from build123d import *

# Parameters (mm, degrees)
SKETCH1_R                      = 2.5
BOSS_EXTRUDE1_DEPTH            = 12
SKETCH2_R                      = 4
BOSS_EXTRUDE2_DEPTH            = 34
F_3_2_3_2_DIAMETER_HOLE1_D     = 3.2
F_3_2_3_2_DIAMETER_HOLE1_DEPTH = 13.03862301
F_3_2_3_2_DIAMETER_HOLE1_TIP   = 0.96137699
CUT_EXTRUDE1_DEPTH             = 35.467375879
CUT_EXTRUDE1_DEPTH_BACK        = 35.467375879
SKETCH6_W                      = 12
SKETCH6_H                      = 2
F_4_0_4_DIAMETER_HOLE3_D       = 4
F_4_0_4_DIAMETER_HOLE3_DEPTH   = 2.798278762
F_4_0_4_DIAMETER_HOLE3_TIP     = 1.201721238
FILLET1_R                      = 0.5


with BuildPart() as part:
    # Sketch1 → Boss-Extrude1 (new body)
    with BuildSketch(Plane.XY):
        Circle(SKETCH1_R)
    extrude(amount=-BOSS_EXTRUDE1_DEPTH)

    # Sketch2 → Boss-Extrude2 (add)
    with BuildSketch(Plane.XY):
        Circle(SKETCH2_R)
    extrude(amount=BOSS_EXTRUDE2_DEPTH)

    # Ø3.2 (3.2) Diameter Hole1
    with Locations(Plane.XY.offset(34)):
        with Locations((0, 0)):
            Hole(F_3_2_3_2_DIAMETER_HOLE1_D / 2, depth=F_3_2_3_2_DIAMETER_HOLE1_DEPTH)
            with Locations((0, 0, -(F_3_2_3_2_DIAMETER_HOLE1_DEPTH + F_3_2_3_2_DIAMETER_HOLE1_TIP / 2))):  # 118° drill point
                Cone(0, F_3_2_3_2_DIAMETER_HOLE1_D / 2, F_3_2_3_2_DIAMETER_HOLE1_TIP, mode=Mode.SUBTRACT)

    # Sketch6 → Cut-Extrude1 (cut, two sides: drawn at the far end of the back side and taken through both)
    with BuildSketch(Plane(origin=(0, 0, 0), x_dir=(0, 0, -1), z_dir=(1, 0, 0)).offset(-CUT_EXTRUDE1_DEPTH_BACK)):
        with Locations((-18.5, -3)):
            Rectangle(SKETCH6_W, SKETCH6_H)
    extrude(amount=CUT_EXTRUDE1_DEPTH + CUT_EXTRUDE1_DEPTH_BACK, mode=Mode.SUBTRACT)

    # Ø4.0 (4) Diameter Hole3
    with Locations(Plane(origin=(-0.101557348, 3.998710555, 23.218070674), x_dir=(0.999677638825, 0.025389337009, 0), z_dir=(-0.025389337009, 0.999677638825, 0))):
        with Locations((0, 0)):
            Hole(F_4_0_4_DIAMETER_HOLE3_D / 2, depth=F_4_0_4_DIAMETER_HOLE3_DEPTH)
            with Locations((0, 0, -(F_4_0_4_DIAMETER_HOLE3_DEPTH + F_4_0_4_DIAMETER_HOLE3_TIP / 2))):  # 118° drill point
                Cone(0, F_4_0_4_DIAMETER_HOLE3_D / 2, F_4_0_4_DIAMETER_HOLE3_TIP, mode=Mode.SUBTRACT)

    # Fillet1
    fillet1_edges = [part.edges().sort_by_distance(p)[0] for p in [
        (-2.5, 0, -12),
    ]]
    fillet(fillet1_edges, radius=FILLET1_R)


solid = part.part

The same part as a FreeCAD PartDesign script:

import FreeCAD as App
import Part
import Sketcher

V = App.Vector


def edges_at(feature, points):
    """Names of the edges that pass closest to the given points."""
    edges = feature.Shape.Edges
    near = lambda p: min(range(len(edges)), key=lambda i: edges[i].distToShape(Part.Vertex(*p))[0])
    return sorted({f"Edge{near(p) + 1}" for p in points})


def add_polygon(sketch, points):
    """Adds a closed chain of lines whose ends are joined by coincident constraints."""
    first, n = sketch.GeometryCount, len(points)
    for a, b in zip(points, points[1:] + points[:1]):
        sketch.addGeometry(Part.LineSegment(App.Vector(*a, 0), App.Vector(*b, 0)), False)
    for i in range(n):
        sketch.addConstraint(Sketcher.Constraint("Coincident", first + i, 2, first + (i + 1) % n, 1))

doc = App.newDocument("Part")
body = doc.addObject("PartDesign::Body", "Body")

# Sketch on XY plane
sketch1 = body.newObject("Sketcher::SketchObject", "Sketch")
sketch1.AttachmentSupport = (doc.getObject("XY_Plane"), [""])
sketch1.MapMode = "FlatFace"
sketch1.addGeometry(Part.Circle(V(0, 0, 0), V(0, 0, 1), 2.5), False)
sketch1.addConstraint([
    Sketcher.Constraint("Coincident", 0, 3, -1, 1),
    Sketcher.Constraint("Diameter", 0, 5.0),
])
pad1 = body.newObject("PartDesign::Pad", "Pad")
pad1.Profile = sketch1
pad1.Length = 12
pad1.Reversed = True

# Sketch on XY plane
sketch2 = body.newObject("Sketcher::SketchObject", "Sketch001")
sketch2.AttachmentSupport = (doc.getObject("XY_Plane"), [""])
sketch2.MapMode = "FlatFace"
sketch2.addGeometry(Part.Circle(V(0, 0, 0), V(0, 0, 1), 4), False)
sketch2.addConstraint([
    Sketcher.Constraint("Coincident", 0, 3, -1, 1),
    Sketcher.Constraint("Diameter", 0, 8.0),
])
pad2 = body.newObject("PartDesign::Pad", "Pad001")
pad2.Profile = sketch2
pad2.Length = 34

# Sketch on XY plane
sketch3 = body.newObject("Sketcher::SketchObject", "Sketch002")
sketch3.AttachmentSupport = (doc.getObject("XY_Plane"), [""])
sketch3.MapMode = "FlatFace"
sketch3.AttachmentOffset = App.Placement(V(0, 0, 34), App.Rotation())
sketch3.addGeometry(Part.Circle(V(0, 0, 0), V(0, 0, 1), 1.6), False)
sketch3.addConstraint([
    Sketcher.Constraint("Coincident", 0, 3, -1, 1),
    Sketcher.Constraint("Diameter", 0, 3.2),
])
doc.recompute()
hole = body.newObject("PartDesign::Hole", "Hole")
hole.Profile = sketch3
hole.ThreadType = "None"
hole.Diameter = 3.2
hole.DepthType = "Dimension"
hole.Depth = 13.038623
hole.DrillPoint = "Angled"
hole.DrillPointAngle = 118

# Sketch on YZ plane
sketch4 = body.newObject("Sketcher::SketchObject", "Sketch003")
sketch4.AttachmentSupport = (doc.getObject("YZ_Plane"), [""])
sketch4.MapMode = "FlatFace"
add_polygon(sketch4, [(-2, 24.5), (-4, 24.5), (-4, 12.5), (-2, 12.5)])  # lines 0-3
sketch4.addConstraint([
    Sketcher.Constraint("Horizontal", 0),
    Sketcher.Constraint("Vertical", 1),
    Sketcher.Constraint("Horizontal", 2),
    Sketcher.Constraint("Vertical", 3),
    Sketcher.Constraint("DistanceX", 0, 2, 0, 1, 2.0),
    Sketcher.Constraint("DistanceY", 1, 2, 1, 1, 12.0),
    Sketcher.Constraint("DistanceX", 0, 2, -1, 1, 4.0),
    Sketcher.Constraint("DistanceY", -1, 1, 0, 2, 24.5),
])
pocket1 = body.newObject("PartDesign::Pocket", "Pocket")
pocket1.Profile = sketch4
pocket1.Type = "ThroughAll"
pocket1.Midplane = True

# Sketch on an angled plane
sketch5 = body.newObject("Sketcher::SketchObject", "Sketch004")
sketch5.Placement = App.Placement(V(-0.101557, 3.998711, 0), App.Rotation(V(0.999677639, 0.025389337, 0), V(0, 0, -1), V(-0.025389337, 0.999677639, 0), "ZXY"))
sketch5.addGeometry(Part.Circle(V(0, -23.2, 0), V(0, 0, 1), 2), False)
sketch5.addConstraint([
    Sketcher.Constraint("PointOnObject", 0, 3, -2),
    Sketcher.Constraint("Diameter", 0, 4.0),
    Sketcher.Constraint("DistanceY", 0, 3, -1, 1, 23.218071),
])
doc.recompute()
hole2 = body.newObject("PartDesign::Hole", "Hole001")
hole2.Profile = sketch5
hole2.ThreadType = "None"
hole2.Diameter = 4
hole2.DepthType = "Dimension"
hole2.Depth = 2.798279
hole2.DrillPoint = "Angled"
hole2.DrillPointAngle = 118
doc.recompute()

fillet = body.newObject("PartDesign::Fillet", "Fillet")
fillet.Base = (hole2, edges_at(hole2, [(-2.5, 0, -12)]))
fillet.Radius = 0.5

doc.recompute()
